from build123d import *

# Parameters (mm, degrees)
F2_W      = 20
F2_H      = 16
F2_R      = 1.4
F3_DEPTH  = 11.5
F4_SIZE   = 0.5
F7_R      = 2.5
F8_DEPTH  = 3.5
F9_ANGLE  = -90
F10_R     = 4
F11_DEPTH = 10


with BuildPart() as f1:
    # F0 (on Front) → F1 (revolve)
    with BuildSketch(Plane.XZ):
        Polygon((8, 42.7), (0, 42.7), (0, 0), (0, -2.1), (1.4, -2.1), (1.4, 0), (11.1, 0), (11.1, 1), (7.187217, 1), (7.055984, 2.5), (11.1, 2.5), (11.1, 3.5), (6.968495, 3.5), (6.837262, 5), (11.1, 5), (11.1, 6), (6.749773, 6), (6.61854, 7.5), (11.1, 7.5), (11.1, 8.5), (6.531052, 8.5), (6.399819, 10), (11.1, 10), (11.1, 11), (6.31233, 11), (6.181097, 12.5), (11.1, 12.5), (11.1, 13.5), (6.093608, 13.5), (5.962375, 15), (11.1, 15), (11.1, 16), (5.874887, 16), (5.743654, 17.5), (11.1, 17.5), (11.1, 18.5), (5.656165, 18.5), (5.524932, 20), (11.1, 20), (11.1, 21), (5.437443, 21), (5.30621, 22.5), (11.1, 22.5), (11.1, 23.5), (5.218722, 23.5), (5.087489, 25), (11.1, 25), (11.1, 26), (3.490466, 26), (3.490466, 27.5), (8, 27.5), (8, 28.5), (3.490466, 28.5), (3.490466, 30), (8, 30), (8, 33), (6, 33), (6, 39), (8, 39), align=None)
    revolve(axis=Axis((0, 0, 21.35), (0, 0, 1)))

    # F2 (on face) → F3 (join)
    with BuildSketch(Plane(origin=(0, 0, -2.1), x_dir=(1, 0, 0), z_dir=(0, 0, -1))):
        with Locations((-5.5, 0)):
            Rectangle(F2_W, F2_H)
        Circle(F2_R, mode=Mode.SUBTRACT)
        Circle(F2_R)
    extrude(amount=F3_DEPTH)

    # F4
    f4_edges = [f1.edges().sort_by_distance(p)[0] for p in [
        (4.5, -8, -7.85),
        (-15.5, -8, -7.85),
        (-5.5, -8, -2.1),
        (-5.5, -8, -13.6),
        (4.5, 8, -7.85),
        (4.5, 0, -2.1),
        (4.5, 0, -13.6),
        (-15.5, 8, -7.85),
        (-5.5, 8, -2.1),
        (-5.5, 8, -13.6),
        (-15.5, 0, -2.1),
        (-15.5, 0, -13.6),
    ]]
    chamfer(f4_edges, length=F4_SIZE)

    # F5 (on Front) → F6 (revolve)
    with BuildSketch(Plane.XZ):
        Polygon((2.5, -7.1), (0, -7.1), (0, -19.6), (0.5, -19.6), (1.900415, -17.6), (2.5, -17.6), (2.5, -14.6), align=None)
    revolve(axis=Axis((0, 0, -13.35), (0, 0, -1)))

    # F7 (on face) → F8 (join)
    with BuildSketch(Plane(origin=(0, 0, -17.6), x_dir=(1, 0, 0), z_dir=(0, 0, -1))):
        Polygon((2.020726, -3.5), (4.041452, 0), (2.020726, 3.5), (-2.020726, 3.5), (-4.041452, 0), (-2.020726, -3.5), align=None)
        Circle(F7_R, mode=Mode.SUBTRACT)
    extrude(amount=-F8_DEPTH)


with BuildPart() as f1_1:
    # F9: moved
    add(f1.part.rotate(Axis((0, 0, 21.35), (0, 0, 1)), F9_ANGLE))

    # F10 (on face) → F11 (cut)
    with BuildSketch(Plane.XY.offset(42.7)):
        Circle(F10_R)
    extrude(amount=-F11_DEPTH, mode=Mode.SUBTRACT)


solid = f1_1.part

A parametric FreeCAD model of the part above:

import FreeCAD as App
import Part
import Sketcher

V = App.Vector
Q = App.Units.Quantity


def edges_at(feature, points):
    """Names of the edges that pass closest to the given points."""
    edges = feature.Shape.Edges
    near = lambda p: min(range(len(edges)), key=lambda i: edges[i].distToShape(Part.Vertex(*p))[0])
    return sorted({f"Edge{near(p) + 1}" for p in points})


def add_polygon(sketch, points):
    """Adds a closed chain of lines whose ends are joined by coincident constraints."""
    first, n = sketch.GeometryCount, len(points)
    for a, b in zip(points, points[1:] + points[:1]):
        sketch.addGeometry(Part.LineSegment(App.Vector(*a, 0), App.Vector(*b, 0)), False)
    for i in range(n):
        sketch.addConstraint(Sketcher.Constraint("Coincident", first + i, 2, first + (i + 1) % n, 1))

doc = App.newDocument("Part")
body = doc.addObject("PartDesign::Body", "Body")

# Sketch on XZ plane
sketch1 = body.newObject("Sketcher::SketchObject", "Sketch")
sketch1.AttachmentSupport = (doc.getObject("XZ_Plane"), [""])
sketch1.MapMode = "FlatFace"
add_polygon(sketch1, [(8, 42.7), (0, 42.7), (0, -2.1), (1.4, -2.1), (1.4, 0), (11.1, 0), (11.1, 1), (7.187217, 1), (7.055984, 2.5), (11.1, 2.5), (11.1, 3.5), (6.968495, 3.5), (6.837262, 5), (11.1, 5), (11.1, 6), (6.749773, 6), (6.61854, 7.5), (11.1, 7.5), (11.1, 8.5), (6.531052, 8.5), (6.399819, 10), (11.1, 10), (11.1, 11), (6.31233, 11), (6.181097, 12.5), (11.1, 12.5), (11.1, 13.5), (6.093608, 13.5), (5.962375, 15), (11.1, 15), (11.1, 16), (5.874887, 16), (5.743654, 17.5), (11.1, 17.5), (11.1, 18.5), (5.656165, 18.5), (5.524932, 20), (11.1, 20), (11.1, 21), (5.437443, 21), (5.30621, 22.5), (11.1, 22.5), (11.1, 23.5), (5.218722, 23.5), (5.087489, 25), (11.1, 25), (11.1, 26), (3.490466, 26), (3.490466, 27.5), (8, 27.5), (8, 28.5), (3.490466, 28.5), (3.490466, 30), (8, 30), (8, 33), (6, 33), (6, 39), (8, 39)])  # lines 0-57
sketch1.addConstraint(Sketcher.Constraint("Horizontal", 0))
sketch1.addConstraint(Sketcher.Constraint("Vertical", 1))
sketch1.addConstraint(Sketcher.Constraint("Horizontal", 2))
sketch1.addConstraint(Sketcher.Constraint("Vertical", 3))
sketch1.addConstraint(Sketcher.Constraint("Horizontal", 4))
sketch1.addConstraint(Sketcher.Constraint("Vertical", 5))
sketch1.addConstraint(Sketcher.Constraint("Horizontal", 6))
sketch1.addConstraint(Sketcher.Constraint("Horizontal", 8))
sketch1.addConstraint(Sketcher.Constraint("Vertical", 9))
sketch1.addConstraint(Sketcher.Constraint("Horizontal", 10))
sketch1.addConstraint(Sketcher.Constraint("Horizontal", 12))
sketch1.addConstraint(Sketcher.Constraint("Vertical", 13))
sketch1.addConstraint(Sketcher.Constraint("Horizontal", 14))
sketch1.addConstraint(Sketcher.Constraint("Horizontal", 16))
sketch1.addConstraint(Sketcher.Constraint("Vertical", 17))
sketch1.addConstraint(Sketcher.Constraint("Horizontal", 18))
sketch1.addConstraint(Sketcher.Constraint("Horizontal", 20))
sketch1.addConstraint(Sketcher.Constraint("Vertical", 21))
sketch1.addConstraint(Sketcher.Constraint("Horizontal", 22))
sketch1.addConstraint(Sketcher.Constraint("Horizontal", 24))
sketch1.addConstraint(Sketcher.Constraint("Vertical", 25))
sketch1.addConstraint(Sketcher.Constraint("Horizontal", 26))
sketch1.addConstraint(Sketcher.Constraint("Horizontal", 28))
sketch1.addConstraint(Sketcher.Constraint("Vertical", 29))
sketch1.addConstraint(Sketcher.Constraint("Horizontal", 30))
sketch1.addConstraint(Sketcher.Constraint("Horizontal", 32))
sketch1.addConstraint(Sketcher.Constraint("Vertical", 33))
sketch1.addConstraint(Sketcher.Constraint("Horizontal", 34))
sketch1.addConstraint(Sketcher.Constraint("Horizontal", 36))
sketch1.addConstraint(Sketcher.Constraint("Vertical", 37))
sketch1.addConstraint(Sketcher.Constraint("Horizontal", 38))
sketch1.addConstraint(Sketcher.Constraint("Horizontal", 40))
sketch1.addConstraint(Sketcher.Constraint("Vertical", 41))
sketch1.addConstraint(Sketcher.Constraint("Horizontal", 42))
sketch1.addConstraint(Sketcher.Constraint("Horizontal", 44))
sketch1.addConstraint(Sketcher.Constraint("Vertical", 45))
sketch1.addConstraint(Sketcher.Constraint("Horizontal", 46))
sketch1.addConstraint(Sketcher.Constraint("Vertical", 47))
sketch1.addConstraint(Sketcher.Constraint("Horizontal", 48))
sketch1.addConstraint(Sketcher.Constraint("Vertical", 49))
sketch1.addConstraint(Sketcher.Constraint("Horizontal", 50))
sketch1.addConstraint(Sketcher.Constraint("Vertical", 51))
sketch1.addConstraint(Sketcher.Constraint("Horizontal", 52))
sketch1.addConstraint(Sketcher.Constraint("Vertical", 53))
sketch1.addConstraint(Sketcher.Constraint("Horizontal", 54))
sketch1.addConstraint(Sketcher.Constraint("Vertical", 55))
sketch1.addConstraint(Sketcher.Constraint("Horizontal", 56))
sketch1.addConstraint(Sketcher.Constraint("Vertical", 57))
sketch1.addConstraint(Sketcher.Constraint("PointOnObject", 0, 2, -2))
sketch1.addConstraint(Sketcher.Constraint("PointOnObject", 3, 2, -1))
sketch1.addConstraint(Sketcher.Constraint("Parallel", 7, 11))
sketch1.addConstraint(Sketcher.Constraint("Parallel", 11, 15))
sketch1.addConstraint(Sketcher.Constraint("Parallel", 15, 19))
sketch1.addConstraint(Sketcher.Constraint("Parallel", 19, 23))
sketch1.addConstraint(Sketcher.Constraint("Parallel", 23, 27))
sketch1.addConstraint(Sketcher.Constraint("Parallel", 27, 31))
sketch1.addConstraint(Sketcher.Constraint("Parallel", 31, 35))
sketch1.addConstraint(Sketcher.Constraint("Parallel", 35, 39))
sketch1.addConstraint(Sketcher.Constraint("Parallel", 39, 43))
sketch1.addConstraint(Sketcher.Constraint("Vertical", 5, 2, 8, 2))
sketch1.addConstraint(Sketcher.Constraint("Vertical", 9, 2, 12, 2))
sketch1.addConstraint(Sketcher.Constraint("Vertical", 13, 2, 16, 2))
sketch1.addConstraint(Sketcher.Constraint("Vertical", 17, 2, 20, 2))
sketch1.addConstraint(Sketcher.Constraint("Vertical", 21, 2, 24, 2))
sketch1.addConstraint(Sketcher.Constraint("Vertical", 25, 2, 28, 2))
sketch1.addConstraint(Sketcher.Constraint("Vertical", 29, 2, 32, 2))
sketch1.addConstraint(Sketcher.Constraint("Vertical", 33, 2, 36, 2))
sketch1.addConstraint(Sketcher.Constraint("Vertical", 37, 2, 40, 2))
sketch1.addConstraint(Sketcher.Constraint("Vertical", 41, 2, 44, 2))
sketch1.addConstraint(Sketcher.Constraint("Vertical", 47, 2, 50, 2))
sketch1.addConstraint(Sketcher.Constraint("Vertical", 49, 2, 52, 2))
sketch1.addConstraint(Sketcher.Constraint("Vertical", 53, 2, 56, 2))
sketch1.addConstraint(Sketcher.Constraint("Equal", 5, 9))
sketch1.addConstraint(Sketcher.Constraint("Equal", 9, 13))
sketch1.addConstraint(Sketcher.Constraint("Equal", 13, 17))
sketch1.addConstraint(Sketcher.Constraint("Equal", 17, 21))
sketch1.addConstraint(Sketcher.Constraint("Equal", 21, 25))
sketch1.addConstraint(Sketcher.Constraint("Equal", 25, 29))
sketch1.addConstraint(Sketcher.Constraint("Equal", 29, 33))
sketch1.addConstraint(Sketcher.Constraint("Equal", 33, 37))
sketch1.addConstraint(Sketcher.Constraint("Equal", 37, 41))
sketch1.addConstraint(Sketcher.Constraint("Equal", 41, 45))
sketch1.addConstraint(Sketcher.Constraint("Equal", 45, 49))
sketch1.addConstraint(Sketcher.Constraint("Equal", 47, 51))
sketch1.addConstraint(Sketcher.Constraint("Equal", 7, 11))
sketch1.addConstraint(Sketcher.Constraint("Equal", 11, 15))
sketch1.addConstraint(Sketcher.Constraint("Equal", 15, 19))
sketch1.addConstraint(Sketcher.Constraint("Equal", 19, 23))
sketch1.addConstraint(Sketcher.Constraint("Equal", 23, 27))
sketch1.addConstraint(Sketcher.Constraint("Equal", 27, 31))
sketch1.addConstraint(Sketcher.Constraint("Equal", 31, 35))
sketch1.addConstraint(Sketcher.Constraint("Equal", 35, 39))
sketch1.addConstraint(Sketcher.Constraint("Equal", 39, 43))
sketch1.addConstraint(Sketcher.Constraint("DistanceX", 0, 2, 0, 1, Q("8 mm")))
sketch1.addConstraint(Sketcher.Constraint("DistanceX", 54, 2, 54, 1, Q("2 mm")))
sketch1.addConstraint(Sketcher.Constraint("DistanceY", 5, 1, 5, 2, Q("1 mm")))
sketch1.addConstraint(Sketcher.Constraint("DistanceY", 53, 1, 53, 2, Q("3 mm")))
sketch1.addConstraint(Sketcher.Constraint("DistanceY", 55, 1, 55, 2, Q("6 mm")))
sketch1.addConstraint(Sketcher.Constraint("Angle", 7, Q("95 deg")))
sketch1.addConstraint(Sketcher.Constraint("DistanceX", 2, 1, 2, 2, Q("1.4 mm")))
sketch1.addConstraint(Sketcher.Constraint("DistanceX", 4, 1, 4, 2, Q("9.7 mm")))
sketch1.addConstraint(Sketcher.Constraint("DistanceY", 1, 2, 1, 1, Q("44.8 mm")))
sketch1.addConstraint(Sketcher.Constraint("DistanceY", 3, 1, 3, 2, Q("2.1 mm")))
sketch1.addConstraint(Sketcher.Constraint("DistanceY", 47, 1, 47, 2, Q("1.5 mm")))
sketch1.addConstraint(Sketcher.Constraint("DistanceY", 57, 1, 57, 2, Q("3.7 mm")))
sketch1.addConstraint(Sketcher.Constraint("DistanceX", 16, 1, 16, 2, Q("4.48146 mm")))
sketch1.addConstraint(Sketcher.Constraint("DistanceX", 20, 1, 20, 2, Q("4.700181 mm")))
sketch1.addConstraint(Sketcher.Constraint("DistanceX", 22, 2, 22, 1, Q("4.78767 mm")))
sketch1.addConstraint(Sketcher.Constraint("DistanceX", 40, 1, 40, 2, Q("5.79379 mm")))
sketch1.addConstraint(Sketcher.Constraint("DistanceX", 44, 1, 44, 2, Q("6.012511 mm")))
sketch1.addConstraint(Sketcher.Constraint("DistanceX", 6, 2, 6, 1, Q("3.912783 mm")))
sketch1.addConstraint(Sketcher.Constraint("DistanceX", 10, 2, 10, 1, Q("4.131505 mm")))
sketch1.addConstraint(Sketcher.Constraint("DistanceX", 26, 2, 26, 1, Q("5.006392 mm")))
sketch1.addConstraint(Sketcher.Constraint("DistanceX", 30, 2, 30, 1, Q("5.225113 mm")))
sketch1.addConstraint(Sketcher.Constraint("DistanceX", 34, 2, 34, 1, Q("5.443835 mm")))
sketch1.addConstraint(Sketcher.Constraint("DistanceX", 46, 2, 46, 1, Q("7.609534 mm")))
revolution = body.newObject("PartDesign::Revolution", "Revolution")
revolution.Profile = sketch1
revolution.ReferenceAxis = (sketch1, ["V_Axis"])
revolution.Angle = 360

# Sketch on XY plane
sketch2 = body.newObject("Sketcher::SketchObject", "Sketch001")
sketch2.AttachmentSupport = (doc.getObject("XY_Plane"), [""])
sketch2.MapMode = "FlatFace"
sketch2.AttachmentOffset = App.Placement(V(0, 0, -2.1), App.Rotation())
add_polygon(sketch2, [(-15.5, -8), (-15.5, 8), (4.5, 8), (4.5, -8)])  # lines 0-3
sketch2.addConstraint(Sketcher.Constraint("Vertical", 0))
sketch2.addConstraint(Sketcher.Constraint("Horizontal", 1))
sketch2.addConstraint(Sketcher.Constraint("Vertical", 2))
sketch2.addConstraint(Sketcher.Constraint("Horizontal", 3))
sketch2.addConstraint(Sketcher.Constraint("DistanceX", 1, 1, 1, 2, Q("20 mm")))
sketch2.addConstraint(Sketcher.Constraint("DistanceY", 0, 1, 0, 2, Q("16 mm")))
sketch2.addConstraint(Sketcher.Constraint("DistanceY", -1, 1, 0, 2, Q("8 mm")))
sketch2.addConstraint(Sketcher.Constraint("DistanceX", 0, 2, -1, 1, Q("15.5 mm")))
pad1 = body.newObject("PartDesign::Pad", "Pad")
pad1.Profile = sketch2
pad1.Length = 11.5
pad1.Reversed = True
doc.recompute()

chamfer = body.newObject("PartDesign::Chamfer", "Chamfer")
chamfer.Base = (pad1, edges_at(pad1, [
    (4.5, -8, -7.85),
    (-15.5, -8, -7.85),
    (-5.5, -8, -2.1),
    (-5.5, -8, -13.6),
    (4.5, 8, -7.85),
    (4.5, 0, -2.1),
    (4.5, 0, -13.6),
    (-15.5, 8, -7.85),
    (-5.5, 8, -2.1),
    (-5.5, 8, -13.6),
    (-15.5, 0, -2.1),
    (-15.5, 0, -13.6),
]))
chamfer.Size = 0.5

# Sketch on XZ plane
sketch3 = body.newObject("Sketcher::SketchObject", "Sketch002")
sketch3.AttachmentSupport = (doc.getObject("XZ_Plane"), [""])
sketch3.MapMode = "FlatFace"
add_polygon(sketch3, [(2.5, -7.1), (0, -7.1), (0, -19.6), (0.5, -19.6), (1.900415, -17.6), (2.5, -17.6)])  # lines 0-5
sketch3.addConstraint(Sketcher.Constraint("Horizontal", 0))
sketch3.addConstraint(Sketcher.Constraint("Vertical", 1))
sketch3.addConstraint(Sketcher.Constraint("Horizontal", 2))
sketch3.addConstraint(Sketcher.Constraint("Horizontal", 4))
sketch3.addConstraint(Sketcher.Constraint("Vertical", 5))
sketch3.addConstraint(Sketcher.Constraint("PointOnObject", 0, 2, -2))
sketch3.addConstraint(Sketcher.Constraint("Angle", 3, Q("55.000001 deg")))
sketch3.addConstraint(Sketcher.Constraint("DistanceX", 0, 2, 0, 1, Q("2.5 mm")))
sketch3.addConstraint(Sketcher.Constraint("DistanceX", 2, 1, 2, 2, Q("0.5 mm")))
sketch3.addConstraint(Sketcher.Constraint("DistanceY", 1, 2, 1, 1, Q("12.5 mm")))
sketch3.addConstraint(Sketcher.Constraint("DistanceY", 5, 1, 5, 2, Q("10.5 mm")))
sketch3.addConstraint(Sketcher.Constraint("DistanceY", 0, 2, -1, 1, Q("7.1 mm")))
revolution2 = body.newObject("PartDesign::Revolution", "Revolution001")
revolution2.Profile = sketch3
revolution2.ReferenceAxis = (sketch3, ["V_Axis"])
revolution2.Angle = 360

# Sketch on XY plane
sketch4 = body.newObject("Sketcher::SketchObject", "Sketch003")
sketch4.AttachmentSupport = (doc.getObject("XY_Plane"), [""])
sketch4.MapMode = "FlatFace"
sketch4.AttachmentOffset = App.Placement(V(0, 0, -17.6), App.Rotation())
add_polygon(sketch4, [(2.020726, 3.5), (4.041452, 0), (2.020726, -3.5), (-2.020726, -3.5), (-4.041452, 0), (-2.020726, 3.5)])  # lines 0-5
sketch4.addGeometry(Part.Circle(V(0, 0, 0), V(0, 0, 1), 2.5), False)  # 6
sketch4.addConstraint(Sketcher.Constraint("Horizontal", 2))
sketch4.addConstraint(Sketcher.Constraint("Horizontal", 5))
sketch4.addConstraint(Sketcher.Constraint("Coincident", 6, 3, -1, 1))
sketch4.addConstraint(Sketcher.Constraint("Symmetric", 0, 2, 3, 2, -1, 1))
sketch4.addConstraint(Sketcher.Constraint("Symmetric", 1, 2, 4, 2, -1, 1))
sketch4.addConstraint(Sketcher.Constraint("PointOnObject", 0, 2, -1))
sketch4.addConstraint(Sketcher.Constraint("Parallel", 0, 3))
sketch4.addConstraint(Sketcher.Constraint("Vertical", 2, 2, 4, 2))
sketch4.addConstraint(Sketcher.Constraint("Diameter", 6, Q("5 mm")))
sketch4.addConstraint(Sketcher.Constraint("Angle", 0, Q("-59.999999 deg")))
sketch4.addConstraint(Sketcher.Constraint("DistanceY", 2, 2, 4, 2, Q("7 mm")))
sketch4.addConstraint(Sketcher.Constraint("DistanceX", 2, 2, 2, 1, Q("4.041452 mm")))
pad2 = body.newObject("PartDesign::Pad", "Pad001")
pad2.Profile = sketch4
pad2.Length = 3.5
body2 = doc.addObject("PartDesign::Body", "Body001")
doc.recompute()

body.Placement = App.Placement(V(0, 0, 0), App.Rotation(V(0, 0, 1), 270))
boolean = body2.newObject("PartDesign::Boolean", "Boolean")
boolean.Type = "Fuse"
boolean.addObjects([body])

# Sketch on XY plane
sketch5 = body2.newObject("Sketcher::SketchObject", "Sketch004")
sketch5.AttachmentSupport = (doc.getObject("XY_Plane001"), [""])
sketch5.MapMode = "FlatFace"
sketch5.AttachmentOffset = App.Placement(V(0, 0, 42.7), App.Rotation())
sketch5.addGeometry(Part.Circle(V(0, 0, 0), V(0, 0, 1), 4), False)
sketch5.addConstraint(Sketcher.Constraint("Coincident", 0, 3, -1, 1))
sketch5.addConstraint(Sketcher.Constraint("Diameter", 0, Q("8 mm")))
pocket1 = body2.newObject("PartDesign::Pocket", "Pocket")
pocket1.Profile = sketch5
pocket1.Length = 10

doc.recompute()
